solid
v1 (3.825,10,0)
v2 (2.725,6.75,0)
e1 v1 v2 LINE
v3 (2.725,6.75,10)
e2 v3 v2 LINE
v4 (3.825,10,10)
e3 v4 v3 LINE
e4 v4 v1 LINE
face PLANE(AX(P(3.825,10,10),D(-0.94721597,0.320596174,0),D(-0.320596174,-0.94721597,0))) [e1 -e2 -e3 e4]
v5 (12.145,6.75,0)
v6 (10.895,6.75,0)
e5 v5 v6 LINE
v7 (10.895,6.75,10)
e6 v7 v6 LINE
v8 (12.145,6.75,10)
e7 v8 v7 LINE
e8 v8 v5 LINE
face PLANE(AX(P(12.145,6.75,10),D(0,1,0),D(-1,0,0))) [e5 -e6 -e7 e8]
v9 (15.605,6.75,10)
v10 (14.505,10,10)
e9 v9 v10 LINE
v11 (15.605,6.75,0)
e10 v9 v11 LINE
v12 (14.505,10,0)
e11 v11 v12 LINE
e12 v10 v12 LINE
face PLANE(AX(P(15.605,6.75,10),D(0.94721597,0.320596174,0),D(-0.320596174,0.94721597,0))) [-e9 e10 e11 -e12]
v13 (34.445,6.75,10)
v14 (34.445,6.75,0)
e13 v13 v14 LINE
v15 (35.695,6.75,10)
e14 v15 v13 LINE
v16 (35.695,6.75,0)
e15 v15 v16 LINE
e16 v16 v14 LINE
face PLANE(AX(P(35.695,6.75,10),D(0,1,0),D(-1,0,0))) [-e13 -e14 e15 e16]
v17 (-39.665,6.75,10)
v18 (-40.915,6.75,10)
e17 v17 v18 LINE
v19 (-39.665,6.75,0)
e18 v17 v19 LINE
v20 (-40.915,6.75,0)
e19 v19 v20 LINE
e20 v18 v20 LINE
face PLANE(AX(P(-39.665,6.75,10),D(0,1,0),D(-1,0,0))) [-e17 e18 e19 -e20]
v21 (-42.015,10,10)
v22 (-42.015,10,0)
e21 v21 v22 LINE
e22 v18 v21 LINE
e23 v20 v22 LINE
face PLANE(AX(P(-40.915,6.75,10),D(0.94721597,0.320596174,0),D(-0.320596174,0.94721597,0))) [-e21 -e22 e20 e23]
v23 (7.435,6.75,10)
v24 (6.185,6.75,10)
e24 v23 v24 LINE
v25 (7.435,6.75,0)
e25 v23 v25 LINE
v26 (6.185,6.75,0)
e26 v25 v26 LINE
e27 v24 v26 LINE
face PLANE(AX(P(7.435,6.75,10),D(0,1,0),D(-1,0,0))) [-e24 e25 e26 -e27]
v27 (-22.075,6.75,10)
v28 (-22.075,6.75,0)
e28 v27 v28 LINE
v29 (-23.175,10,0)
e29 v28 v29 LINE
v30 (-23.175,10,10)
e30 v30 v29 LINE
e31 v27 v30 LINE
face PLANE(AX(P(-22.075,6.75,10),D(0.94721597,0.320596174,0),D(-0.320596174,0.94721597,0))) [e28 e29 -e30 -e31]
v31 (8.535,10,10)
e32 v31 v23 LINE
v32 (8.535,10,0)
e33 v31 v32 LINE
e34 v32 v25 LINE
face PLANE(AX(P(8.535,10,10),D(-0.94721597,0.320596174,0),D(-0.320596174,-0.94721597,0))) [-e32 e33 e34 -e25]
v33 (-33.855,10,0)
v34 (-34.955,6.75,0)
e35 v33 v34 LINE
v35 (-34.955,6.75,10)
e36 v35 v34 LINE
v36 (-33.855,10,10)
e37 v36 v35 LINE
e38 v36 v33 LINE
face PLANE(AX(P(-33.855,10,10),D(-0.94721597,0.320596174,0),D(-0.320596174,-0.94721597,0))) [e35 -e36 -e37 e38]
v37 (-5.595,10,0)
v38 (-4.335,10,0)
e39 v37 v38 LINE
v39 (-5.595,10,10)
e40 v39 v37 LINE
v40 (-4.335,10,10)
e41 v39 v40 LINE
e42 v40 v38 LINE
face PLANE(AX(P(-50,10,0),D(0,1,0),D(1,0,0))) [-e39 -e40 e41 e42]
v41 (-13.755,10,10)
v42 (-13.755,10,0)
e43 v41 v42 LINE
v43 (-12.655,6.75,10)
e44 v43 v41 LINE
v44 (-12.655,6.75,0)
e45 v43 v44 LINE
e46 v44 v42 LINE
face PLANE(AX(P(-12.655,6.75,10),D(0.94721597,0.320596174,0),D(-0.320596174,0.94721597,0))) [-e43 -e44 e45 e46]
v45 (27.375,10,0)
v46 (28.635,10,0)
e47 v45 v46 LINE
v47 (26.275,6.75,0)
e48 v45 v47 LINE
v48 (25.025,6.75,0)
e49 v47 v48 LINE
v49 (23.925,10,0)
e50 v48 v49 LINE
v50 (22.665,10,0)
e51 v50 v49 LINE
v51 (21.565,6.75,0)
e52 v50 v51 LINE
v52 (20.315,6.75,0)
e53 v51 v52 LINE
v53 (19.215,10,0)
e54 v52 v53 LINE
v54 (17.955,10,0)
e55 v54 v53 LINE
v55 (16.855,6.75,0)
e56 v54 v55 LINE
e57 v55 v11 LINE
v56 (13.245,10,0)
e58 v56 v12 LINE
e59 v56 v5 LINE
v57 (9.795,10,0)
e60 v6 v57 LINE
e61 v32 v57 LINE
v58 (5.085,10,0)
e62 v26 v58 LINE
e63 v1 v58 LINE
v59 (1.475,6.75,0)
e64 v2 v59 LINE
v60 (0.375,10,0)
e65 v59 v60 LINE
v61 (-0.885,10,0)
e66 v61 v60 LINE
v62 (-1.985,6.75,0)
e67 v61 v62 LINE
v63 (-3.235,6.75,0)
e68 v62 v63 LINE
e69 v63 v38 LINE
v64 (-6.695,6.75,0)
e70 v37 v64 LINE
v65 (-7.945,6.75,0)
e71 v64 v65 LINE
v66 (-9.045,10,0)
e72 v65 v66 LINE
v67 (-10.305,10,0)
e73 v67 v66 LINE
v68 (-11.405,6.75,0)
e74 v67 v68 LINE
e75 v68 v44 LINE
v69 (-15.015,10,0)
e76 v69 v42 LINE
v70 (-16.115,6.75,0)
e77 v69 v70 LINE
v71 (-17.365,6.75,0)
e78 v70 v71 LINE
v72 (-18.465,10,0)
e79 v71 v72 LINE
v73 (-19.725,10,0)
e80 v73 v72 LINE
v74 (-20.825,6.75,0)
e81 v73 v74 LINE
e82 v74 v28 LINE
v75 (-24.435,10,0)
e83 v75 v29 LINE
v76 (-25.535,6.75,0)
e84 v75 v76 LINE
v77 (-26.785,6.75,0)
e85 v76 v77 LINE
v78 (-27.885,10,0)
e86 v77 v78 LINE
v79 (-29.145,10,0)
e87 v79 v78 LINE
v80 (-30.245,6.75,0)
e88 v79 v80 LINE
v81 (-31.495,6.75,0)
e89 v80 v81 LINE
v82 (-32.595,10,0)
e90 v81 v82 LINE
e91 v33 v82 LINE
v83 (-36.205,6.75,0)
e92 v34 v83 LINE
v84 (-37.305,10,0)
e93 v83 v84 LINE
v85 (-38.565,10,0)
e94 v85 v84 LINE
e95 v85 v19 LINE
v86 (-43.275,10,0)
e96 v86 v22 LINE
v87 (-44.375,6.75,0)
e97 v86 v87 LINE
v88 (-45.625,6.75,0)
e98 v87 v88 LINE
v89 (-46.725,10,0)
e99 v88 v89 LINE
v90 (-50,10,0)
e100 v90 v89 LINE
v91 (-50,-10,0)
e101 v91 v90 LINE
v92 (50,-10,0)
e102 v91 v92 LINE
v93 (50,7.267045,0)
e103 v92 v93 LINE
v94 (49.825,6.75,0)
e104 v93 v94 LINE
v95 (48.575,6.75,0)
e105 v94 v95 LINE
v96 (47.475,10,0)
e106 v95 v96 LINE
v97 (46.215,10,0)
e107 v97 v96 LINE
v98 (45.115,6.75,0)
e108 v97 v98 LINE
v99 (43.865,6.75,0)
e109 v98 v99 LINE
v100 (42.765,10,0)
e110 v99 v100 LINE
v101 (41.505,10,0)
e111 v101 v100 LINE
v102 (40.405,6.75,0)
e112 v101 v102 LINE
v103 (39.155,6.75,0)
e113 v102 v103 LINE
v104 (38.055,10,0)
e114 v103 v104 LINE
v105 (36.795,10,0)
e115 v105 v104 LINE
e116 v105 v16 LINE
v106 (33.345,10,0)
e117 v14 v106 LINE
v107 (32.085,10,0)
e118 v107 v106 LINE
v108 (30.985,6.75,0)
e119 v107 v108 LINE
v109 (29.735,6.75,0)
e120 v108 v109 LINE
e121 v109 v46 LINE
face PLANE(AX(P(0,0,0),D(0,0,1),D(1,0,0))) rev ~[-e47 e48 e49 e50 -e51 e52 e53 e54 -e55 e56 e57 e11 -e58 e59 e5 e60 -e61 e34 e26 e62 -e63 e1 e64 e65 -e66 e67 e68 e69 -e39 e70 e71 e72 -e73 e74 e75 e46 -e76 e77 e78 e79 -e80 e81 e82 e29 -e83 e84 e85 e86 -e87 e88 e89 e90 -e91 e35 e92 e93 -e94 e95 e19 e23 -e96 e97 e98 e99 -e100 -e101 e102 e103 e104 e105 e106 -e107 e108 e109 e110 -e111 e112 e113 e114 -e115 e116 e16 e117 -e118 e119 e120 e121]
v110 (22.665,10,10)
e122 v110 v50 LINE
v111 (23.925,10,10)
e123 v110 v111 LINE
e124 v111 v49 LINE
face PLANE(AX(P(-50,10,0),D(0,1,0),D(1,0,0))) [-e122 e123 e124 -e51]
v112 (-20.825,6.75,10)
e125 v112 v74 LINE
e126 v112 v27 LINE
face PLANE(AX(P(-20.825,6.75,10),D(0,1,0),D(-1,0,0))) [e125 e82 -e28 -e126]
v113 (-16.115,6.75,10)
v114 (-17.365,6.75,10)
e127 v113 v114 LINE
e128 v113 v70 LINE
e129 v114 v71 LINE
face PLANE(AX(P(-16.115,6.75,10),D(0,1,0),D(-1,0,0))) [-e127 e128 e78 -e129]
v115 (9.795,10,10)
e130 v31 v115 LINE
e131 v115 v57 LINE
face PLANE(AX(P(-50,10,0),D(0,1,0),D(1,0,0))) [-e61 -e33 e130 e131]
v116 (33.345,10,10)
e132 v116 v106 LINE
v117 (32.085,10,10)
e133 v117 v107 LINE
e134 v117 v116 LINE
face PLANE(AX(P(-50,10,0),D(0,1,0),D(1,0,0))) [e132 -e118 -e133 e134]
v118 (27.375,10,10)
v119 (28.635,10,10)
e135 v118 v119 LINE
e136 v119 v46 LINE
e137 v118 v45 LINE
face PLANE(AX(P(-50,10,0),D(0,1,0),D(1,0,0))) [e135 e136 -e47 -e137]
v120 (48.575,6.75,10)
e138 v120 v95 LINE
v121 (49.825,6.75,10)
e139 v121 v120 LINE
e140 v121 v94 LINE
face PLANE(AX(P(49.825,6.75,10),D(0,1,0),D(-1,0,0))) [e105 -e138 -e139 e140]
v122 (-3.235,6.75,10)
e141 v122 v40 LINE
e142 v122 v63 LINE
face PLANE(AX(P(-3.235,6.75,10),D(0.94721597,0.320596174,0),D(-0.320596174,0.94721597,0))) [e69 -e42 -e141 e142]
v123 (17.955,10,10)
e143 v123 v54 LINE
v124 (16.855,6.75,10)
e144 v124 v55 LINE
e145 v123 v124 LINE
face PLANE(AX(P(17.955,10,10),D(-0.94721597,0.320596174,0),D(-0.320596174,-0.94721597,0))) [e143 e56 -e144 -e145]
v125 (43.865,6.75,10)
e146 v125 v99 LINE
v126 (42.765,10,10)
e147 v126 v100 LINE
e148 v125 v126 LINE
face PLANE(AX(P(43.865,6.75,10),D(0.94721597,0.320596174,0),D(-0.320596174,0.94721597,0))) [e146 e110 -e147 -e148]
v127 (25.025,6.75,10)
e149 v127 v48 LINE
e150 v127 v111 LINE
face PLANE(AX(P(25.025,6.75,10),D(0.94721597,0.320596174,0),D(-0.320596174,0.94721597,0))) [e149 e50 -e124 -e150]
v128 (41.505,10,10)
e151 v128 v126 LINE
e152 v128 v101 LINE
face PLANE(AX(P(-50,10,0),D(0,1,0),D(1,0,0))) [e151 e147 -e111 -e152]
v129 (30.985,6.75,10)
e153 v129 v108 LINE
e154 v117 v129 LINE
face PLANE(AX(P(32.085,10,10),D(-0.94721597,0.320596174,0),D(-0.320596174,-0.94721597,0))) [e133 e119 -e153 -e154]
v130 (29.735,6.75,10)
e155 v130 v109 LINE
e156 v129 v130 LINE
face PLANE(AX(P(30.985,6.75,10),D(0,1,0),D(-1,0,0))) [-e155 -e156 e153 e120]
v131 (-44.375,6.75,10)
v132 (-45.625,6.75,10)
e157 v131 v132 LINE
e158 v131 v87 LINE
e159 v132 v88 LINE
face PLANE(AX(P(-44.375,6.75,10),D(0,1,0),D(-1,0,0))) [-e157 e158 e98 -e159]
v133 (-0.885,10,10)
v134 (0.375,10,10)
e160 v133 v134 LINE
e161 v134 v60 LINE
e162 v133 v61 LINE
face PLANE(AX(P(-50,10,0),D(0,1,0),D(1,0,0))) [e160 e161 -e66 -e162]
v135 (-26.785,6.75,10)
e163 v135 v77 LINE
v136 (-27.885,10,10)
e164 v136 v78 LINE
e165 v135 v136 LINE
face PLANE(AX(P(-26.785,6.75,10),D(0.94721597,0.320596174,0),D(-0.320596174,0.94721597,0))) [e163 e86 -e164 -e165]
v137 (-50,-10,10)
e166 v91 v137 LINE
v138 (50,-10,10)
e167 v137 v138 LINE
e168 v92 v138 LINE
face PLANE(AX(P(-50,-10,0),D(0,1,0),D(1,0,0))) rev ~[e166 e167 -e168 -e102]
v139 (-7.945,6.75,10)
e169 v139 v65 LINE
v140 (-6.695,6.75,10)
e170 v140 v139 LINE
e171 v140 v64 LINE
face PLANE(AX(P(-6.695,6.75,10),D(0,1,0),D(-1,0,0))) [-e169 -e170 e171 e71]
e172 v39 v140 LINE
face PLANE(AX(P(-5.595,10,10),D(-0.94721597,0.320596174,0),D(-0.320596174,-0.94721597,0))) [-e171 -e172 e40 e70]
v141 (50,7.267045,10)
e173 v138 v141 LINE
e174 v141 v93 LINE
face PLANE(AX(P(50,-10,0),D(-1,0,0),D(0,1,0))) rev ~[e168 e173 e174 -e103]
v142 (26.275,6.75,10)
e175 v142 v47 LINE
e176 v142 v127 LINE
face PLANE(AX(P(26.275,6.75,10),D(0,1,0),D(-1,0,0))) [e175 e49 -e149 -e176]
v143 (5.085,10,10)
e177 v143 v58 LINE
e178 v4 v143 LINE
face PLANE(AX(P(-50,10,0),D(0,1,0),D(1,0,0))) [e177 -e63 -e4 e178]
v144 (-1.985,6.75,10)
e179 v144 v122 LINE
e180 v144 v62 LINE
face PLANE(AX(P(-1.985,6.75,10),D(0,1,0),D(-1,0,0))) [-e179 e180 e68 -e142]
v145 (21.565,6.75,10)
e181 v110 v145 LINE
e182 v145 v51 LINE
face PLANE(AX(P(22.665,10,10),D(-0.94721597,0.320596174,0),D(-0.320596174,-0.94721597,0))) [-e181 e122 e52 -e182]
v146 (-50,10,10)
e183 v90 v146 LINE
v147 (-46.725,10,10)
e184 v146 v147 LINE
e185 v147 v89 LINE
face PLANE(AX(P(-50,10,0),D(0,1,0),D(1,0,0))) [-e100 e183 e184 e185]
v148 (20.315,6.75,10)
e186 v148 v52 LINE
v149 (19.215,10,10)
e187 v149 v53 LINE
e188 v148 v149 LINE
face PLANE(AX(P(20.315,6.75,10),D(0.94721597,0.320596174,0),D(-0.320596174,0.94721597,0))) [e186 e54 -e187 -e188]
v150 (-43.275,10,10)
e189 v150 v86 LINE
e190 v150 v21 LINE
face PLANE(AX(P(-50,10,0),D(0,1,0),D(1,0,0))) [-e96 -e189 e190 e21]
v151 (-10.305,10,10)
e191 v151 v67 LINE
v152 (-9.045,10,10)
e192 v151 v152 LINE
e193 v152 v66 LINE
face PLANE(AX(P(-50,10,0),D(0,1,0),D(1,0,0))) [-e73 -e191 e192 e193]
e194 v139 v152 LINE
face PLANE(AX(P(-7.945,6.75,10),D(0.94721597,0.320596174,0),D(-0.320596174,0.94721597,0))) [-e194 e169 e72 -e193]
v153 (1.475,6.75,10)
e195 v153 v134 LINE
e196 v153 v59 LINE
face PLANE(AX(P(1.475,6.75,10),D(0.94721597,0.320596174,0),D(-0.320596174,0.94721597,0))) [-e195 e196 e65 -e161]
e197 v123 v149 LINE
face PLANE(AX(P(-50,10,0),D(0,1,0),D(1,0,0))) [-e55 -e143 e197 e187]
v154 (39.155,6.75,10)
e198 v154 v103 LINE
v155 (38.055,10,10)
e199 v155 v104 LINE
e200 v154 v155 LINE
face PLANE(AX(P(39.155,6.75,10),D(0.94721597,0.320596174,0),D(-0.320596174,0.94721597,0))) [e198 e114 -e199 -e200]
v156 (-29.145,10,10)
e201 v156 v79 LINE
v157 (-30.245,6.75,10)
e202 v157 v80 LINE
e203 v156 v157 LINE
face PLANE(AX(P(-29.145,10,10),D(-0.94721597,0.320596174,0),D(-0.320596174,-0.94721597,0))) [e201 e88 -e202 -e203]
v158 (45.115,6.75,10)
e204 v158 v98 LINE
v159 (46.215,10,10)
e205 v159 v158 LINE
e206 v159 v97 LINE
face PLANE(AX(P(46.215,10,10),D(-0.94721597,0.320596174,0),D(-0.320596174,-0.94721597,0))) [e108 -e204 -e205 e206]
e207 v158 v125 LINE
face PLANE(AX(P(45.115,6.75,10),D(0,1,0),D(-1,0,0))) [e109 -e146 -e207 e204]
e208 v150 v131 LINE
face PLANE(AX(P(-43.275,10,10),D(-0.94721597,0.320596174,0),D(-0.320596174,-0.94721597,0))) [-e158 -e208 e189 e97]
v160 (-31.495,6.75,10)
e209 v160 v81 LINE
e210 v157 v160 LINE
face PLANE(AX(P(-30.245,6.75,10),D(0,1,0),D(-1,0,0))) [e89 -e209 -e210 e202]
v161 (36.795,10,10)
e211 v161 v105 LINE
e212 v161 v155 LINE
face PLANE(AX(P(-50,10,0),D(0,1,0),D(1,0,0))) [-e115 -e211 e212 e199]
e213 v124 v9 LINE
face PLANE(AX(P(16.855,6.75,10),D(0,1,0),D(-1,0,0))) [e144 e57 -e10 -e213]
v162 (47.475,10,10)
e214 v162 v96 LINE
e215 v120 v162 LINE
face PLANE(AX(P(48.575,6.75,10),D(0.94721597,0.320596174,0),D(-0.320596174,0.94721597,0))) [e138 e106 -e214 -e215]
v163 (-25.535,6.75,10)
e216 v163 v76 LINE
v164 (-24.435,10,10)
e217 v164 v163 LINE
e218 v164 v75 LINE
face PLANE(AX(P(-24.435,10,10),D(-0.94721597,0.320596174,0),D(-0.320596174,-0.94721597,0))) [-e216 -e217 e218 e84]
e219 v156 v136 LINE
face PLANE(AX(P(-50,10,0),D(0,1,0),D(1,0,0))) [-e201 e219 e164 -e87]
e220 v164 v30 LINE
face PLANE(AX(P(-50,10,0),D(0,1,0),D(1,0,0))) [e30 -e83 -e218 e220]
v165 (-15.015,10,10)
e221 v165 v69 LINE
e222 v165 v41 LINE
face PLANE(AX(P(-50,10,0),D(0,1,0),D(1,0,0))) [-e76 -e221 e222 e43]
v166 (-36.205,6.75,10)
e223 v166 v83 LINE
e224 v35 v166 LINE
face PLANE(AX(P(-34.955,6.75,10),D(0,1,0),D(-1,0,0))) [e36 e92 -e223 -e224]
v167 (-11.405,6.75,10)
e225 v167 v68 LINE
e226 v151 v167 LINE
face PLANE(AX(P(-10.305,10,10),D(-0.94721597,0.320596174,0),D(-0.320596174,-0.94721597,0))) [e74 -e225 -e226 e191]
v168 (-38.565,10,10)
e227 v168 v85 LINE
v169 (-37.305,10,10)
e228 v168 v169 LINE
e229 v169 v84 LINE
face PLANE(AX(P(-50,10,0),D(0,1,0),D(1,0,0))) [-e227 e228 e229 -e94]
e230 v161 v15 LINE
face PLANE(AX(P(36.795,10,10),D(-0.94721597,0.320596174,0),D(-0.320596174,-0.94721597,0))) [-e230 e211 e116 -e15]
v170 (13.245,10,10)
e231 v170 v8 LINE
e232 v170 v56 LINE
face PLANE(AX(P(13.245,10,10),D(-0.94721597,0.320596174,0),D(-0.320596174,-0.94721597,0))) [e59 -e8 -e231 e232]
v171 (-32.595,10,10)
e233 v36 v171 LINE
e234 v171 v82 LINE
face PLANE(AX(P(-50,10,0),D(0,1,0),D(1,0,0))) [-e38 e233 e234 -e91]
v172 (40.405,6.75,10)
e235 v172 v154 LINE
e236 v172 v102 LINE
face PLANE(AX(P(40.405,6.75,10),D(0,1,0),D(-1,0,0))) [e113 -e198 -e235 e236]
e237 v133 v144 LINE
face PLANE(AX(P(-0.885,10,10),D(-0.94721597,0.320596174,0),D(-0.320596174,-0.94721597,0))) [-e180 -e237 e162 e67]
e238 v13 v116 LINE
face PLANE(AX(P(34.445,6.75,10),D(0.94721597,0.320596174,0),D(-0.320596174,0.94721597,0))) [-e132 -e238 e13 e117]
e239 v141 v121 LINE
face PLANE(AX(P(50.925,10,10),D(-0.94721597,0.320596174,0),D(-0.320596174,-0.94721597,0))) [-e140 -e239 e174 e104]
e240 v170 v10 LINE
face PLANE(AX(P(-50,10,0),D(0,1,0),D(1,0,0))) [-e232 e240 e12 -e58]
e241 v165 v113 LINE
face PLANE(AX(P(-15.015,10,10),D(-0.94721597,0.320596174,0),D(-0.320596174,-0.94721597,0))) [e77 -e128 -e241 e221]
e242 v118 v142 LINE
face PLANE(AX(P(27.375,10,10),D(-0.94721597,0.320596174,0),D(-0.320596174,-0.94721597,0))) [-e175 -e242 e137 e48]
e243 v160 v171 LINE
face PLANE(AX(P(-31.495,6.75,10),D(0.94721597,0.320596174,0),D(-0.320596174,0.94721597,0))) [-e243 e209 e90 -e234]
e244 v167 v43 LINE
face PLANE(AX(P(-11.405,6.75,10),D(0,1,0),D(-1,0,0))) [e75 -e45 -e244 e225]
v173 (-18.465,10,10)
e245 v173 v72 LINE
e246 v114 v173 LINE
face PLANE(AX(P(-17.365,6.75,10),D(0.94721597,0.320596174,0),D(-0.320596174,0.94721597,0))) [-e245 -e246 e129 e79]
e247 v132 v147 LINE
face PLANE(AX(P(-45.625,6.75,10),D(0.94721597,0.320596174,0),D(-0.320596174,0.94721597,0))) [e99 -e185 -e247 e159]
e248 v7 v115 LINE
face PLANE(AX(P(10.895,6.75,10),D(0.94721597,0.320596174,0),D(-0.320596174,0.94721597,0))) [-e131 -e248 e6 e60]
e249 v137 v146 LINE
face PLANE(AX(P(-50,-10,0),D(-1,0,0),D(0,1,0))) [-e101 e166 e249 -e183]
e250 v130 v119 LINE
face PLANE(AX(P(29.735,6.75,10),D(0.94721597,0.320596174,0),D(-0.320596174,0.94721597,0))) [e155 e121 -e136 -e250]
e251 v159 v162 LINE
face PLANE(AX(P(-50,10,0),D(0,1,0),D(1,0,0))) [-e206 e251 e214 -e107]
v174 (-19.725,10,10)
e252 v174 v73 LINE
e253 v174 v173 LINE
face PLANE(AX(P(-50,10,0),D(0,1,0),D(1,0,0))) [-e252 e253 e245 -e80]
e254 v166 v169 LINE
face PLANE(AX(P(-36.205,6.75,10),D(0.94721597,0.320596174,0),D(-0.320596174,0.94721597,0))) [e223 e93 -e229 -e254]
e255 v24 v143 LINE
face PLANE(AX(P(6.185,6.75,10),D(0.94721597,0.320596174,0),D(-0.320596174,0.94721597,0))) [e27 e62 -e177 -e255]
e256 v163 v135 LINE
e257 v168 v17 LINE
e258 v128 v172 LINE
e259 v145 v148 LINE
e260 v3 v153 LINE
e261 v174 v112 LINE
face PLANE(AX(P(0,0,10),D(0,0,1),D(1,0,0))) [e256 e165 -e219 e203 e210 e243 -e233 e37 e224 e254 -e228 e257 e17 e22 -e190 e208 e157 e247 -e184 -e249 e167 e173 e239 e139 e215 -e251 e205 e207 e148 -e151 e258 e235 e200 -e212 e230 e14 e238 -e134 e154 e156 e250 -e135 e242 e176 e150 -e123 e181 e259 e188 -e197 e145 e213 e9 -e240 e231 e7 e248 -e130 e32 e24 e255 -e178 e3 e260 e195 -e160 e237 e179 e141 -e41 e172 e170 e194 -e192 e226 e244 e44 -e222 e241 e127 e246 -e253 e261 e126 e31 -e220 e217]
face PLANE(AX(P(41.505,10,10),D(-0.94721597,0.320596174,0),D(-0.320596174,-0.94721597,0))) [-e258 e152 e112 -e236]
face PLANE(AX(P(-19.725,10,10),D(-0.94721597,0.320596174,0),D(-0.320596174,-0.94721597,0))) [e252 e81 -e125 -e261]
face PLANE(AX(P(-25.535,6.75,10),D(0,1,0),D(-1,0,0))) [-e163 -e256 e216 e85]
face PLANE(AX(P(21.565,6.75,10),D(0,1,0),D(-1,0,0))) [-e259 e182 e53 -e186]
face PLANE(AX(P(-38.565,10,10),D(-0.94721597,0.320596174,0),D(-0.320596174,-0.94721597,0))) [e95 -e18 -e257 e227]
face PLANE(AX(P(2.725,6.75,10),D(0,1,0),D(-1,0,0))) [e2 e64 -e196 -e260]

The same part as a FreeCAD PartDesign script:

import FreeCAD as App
import Part
import Sketcher
from FreeCAD import Vector

doc = App.newDocument("Part")
body = doc.addObject("PartDesign::Body", "Body")

# Sketch on XY plane
sketch1 = body.newObject("Sketcher::SketchObject", "Sketch")
sketch1.AttachmentSupport = (doc.getObject("XY_Plane"), [""])
sketch1.MapMode = "FlatFace"
sketch1.addGeometry(Part.LineSegment(Vector(-50, 10, 0), Vector(-50, -10, 0)), False)
sketch1.addGeometry(Part.LineSegment(Vector(-50, -10, 0), Vector(50, -10, 0)), False)
sketch1.addGeometry(Part.LineSegment(Vector(50, -10, 0), Vector(50, 10, 0)), False)
sketch1.addGeometry(Part.LineSegment(Vector(50, 10, 0), Vector(-50, 10, 0)), False)
sketch1.addConstraint(Sketcher.Constraint("Coincident", 0, 2, 1, 1))
sketch1.addConstraint(Sketcher.Constraint("Coincident", 1, 2, 2, 1))
sketch1.addConstraint(Sketcher.Constraint("Coincident", 2, 2, 3, 1))
sketch1.addConstraint(Sketcher.Constraint("Coincident", 3, 2, 0, 1))
sketch1.addConstraint(Sketcher.Constraint("Vertical", 0))
sketch1.addConstraint(Sketcher.Constraint("Horizontal", 1))
sketch1.addConstraint(Sketcher.Constraint("Vertical", 2))
sketch1.addConstraint(Sketcher.Constraint("Horizontal", 3))
sketch1.addConstraint(Sketcher.Constraint("Symmetric", 0, 2, 2, 2, -1, 1))
sketch1.addConstraint(Sketcher.Constraint("DistanceX", 1, 1, 1, 2, 100.0))
sketch1.addConstraint(Sketcher.Constraint("DistanceY", 0, 2, 0, 1, 20.0))
pad1 = body.newObject("PartDesign::Pad", "Pad")
pad1.Profile = sketch1
pad1.Length = 10

# Sketch on XY plane
sketch2 = body.newObject("Sketcher::SketchObject", "Sketch001")
sketch2.AttachmentSupport = (doc.getObject("XY_Plane"), [""])
sketch2.MapMode = "FlatFace"
sketch2.AttachmentOffset = App.Placement(Vector(0, 0, 10), App.Rotation())
sketch2.addGeometry(Part.LineSegment(Vector(-44.375, 6.75, 0), Vector(-43.275, 10, 0)), False)
sketch2.addGeometry(Part.LineSegment(Vector(-43.275, 10, 0), Vector(-46.725, 10, 0)), False)
sketch2.addGeometry(Part.LineSegment(Vector(-46.725, 10, 0), Vector(-45.625, 6.75, 0)), False)
sketch2.addGeometry(Part.LineSegment(Vector(-45.625, 6.75, 0), Vector(-44.375, 6.75, 0)), False)
sketch2.addConstraint(Sketcher.Constraint("Coincident", 0, 2, 1, 1))
sketch2.addConstraint(Sketcher.Constraint("Coincident", 1, 2, 2, 1))
sketch2.addConstraint(Sketcher.Constraint("Coincident", 2, 2, 3, 1))
sketch2.addConstraint(Sketcher.Constraint("Coincident", 3, 2, 0, 1))
sketch2.addConstraint(Sketcher.Constraint("Horizontal", 1))
sketch2.addConstraint(Sketcher.Constraint("Horizontal", 3))
sketch2.addConstraint(Sketcher.Constraint("Equal", 0, 2))
sketch2.addConstraint(Sketcher.Constraint("DistanceY", -1, 1, 0, 2, 10.0))
sketch2.addConstraint(Sketcher.Constraint("DistanceX", 1, 2, 1, 1, 3.45))
sketch2.addConstraint(Sketcher.Constraint("DistanceX", 3, 1, 3, 2, 1.25))
sketch2.addConstraint(Sketcher.Constraint("DistanceY", -1, 1, 2, 2, 6.75))
sketch2.addConstraint(Sketcher.Constraint("DistanceX", 0, 2, -1, 1, 43.275))
pocket1 = body.newObject("PartDesign::Pocket", "Pocket")
pocket1.Profile = sketch2
pocket1.Type = "ThroughAll"
doc.recompute()

linearpattern = body.newObject("PartDesign::LinearPattern", "LinearPattern")
linearpattern.Originals = [pocket1]
linearpattern.Direction = (doc.getObject("X_Axis"), [""])
linearpattern.Mode = "offset"
linearpattern.Offset = 4.71
linearpattern.Occurrences = 69
body.Tip = linearpattern

doc.recompute()
